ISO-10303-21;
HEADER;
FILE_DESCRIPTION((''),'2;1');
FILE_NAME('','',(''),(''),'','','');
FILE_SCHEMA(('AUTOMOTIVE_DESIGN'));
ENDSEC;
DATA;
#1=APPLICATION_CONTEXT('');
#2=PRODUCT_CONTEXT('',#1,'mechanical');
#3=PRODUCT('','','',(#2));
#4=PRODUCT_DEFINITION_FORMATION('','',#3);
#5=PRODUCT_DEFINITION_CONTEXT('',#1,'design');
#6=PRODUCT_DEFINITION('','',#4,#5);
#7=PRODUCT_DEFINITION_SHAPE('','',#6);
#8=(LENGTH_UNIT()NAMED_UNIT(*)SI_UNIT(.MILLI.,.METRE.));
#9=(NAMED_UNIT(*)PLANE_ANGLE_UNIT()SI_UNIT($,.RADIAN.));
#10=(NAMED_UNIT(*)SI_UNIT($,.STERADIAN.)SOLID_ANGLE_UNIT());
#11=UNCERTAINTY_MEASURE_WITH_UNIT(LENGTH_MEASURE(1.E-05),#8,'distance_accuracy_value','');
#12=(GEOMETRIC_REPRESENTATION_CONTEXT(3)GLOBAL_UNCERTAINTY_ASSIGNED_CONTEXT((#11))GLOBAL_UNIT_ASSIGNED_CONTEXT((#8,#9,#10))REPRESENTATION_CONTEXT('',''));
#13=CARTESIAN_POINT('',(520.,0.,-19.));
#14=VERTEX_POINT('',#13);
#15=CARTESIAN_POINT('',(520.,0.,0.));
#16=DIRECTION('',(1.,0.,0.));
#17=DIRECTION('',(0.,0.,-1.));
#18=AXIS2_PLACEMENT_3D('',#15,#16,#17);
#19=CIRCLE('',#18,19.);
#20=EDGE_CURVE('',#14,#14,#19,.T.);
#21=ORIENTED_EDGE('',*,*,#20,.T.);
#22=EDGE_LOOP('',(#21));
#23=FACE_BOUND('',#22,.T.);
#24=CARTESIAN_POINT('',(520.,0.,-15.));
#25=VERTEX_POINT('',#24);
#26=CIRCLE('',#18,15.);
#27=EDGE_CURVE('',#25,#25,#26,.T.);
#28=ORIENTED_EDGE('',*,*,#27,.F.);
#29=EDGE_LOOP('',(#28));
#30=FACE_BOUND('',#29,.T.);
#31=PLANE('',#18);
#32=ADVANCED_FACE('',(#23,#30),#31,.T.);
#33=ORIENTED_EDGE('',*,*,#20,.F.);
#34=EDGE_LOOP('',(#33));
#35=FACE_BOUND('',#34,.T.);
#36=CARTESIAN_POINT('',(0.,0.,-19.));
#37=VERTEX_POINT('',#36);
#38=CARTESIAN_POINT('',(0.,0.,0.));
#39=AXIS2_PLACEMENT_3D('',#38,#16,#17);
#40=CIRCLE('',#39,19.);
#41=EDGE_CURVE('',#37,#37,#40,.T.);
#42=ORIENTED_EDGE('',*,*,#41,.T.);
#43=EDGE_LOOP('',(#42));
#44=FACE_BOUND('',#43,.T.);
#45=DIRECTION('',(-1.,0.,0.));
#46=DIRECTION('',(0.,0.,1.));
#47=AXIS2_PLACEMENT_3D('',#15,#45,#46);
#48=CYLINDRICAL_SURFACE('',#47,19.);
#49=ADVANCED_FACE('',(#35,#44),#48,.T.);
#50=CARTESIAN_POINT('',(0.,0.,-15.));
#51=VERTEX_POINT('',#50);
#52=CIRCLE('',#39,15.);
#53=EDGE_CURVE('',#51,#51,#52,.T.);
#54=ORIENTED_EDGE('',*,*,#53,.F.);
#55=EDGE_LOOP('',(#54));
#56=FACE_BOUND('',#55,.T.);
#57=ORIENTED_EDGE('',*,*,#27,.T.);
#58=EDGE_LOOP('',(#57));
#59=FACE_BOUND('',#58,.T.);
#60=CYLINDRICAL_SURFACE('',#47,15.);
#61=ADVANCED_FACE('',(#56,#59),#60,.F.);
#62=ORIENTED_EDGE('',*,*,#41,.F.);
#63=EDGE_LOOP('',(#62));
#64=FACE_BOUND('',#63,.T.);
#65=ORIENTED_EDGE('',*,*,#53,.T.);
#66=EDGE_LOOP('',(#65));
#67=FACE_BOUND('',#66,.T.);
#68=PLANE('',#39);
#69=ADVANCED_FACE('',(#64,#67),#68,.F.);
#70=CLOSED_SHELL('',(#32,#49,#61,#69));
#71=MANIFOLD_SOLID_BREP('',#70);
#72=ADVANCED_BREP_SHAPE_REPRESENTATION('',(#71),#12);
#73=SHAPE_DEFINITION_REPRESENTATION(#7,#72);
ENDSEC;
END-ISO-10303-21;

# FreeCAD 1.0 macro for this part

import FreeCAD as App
import Part
import Sketcher

doc = App.newDocument("Part")
body = doc.addObject("PartDesign::Body", "Body")

# Sketch on YZ plane
sketch1 = body.newObject("Sketcher::SketchObject", "Sketch")
sketch1.AttachmentSupport = (doc.getObject("YZ_Plane"), [""])
sketch1.MapMode = "FlatFace"
sketch1.addGeometry([
    Part.Circle(App.Vector(0, 0, 0), App.Vector(0, 0, 1), 19),
    Part.Circle(App.Vector(0, 0, 0), App.Vector(0, 0, 1), 15),
], False)
sketch1.addConstraint([
    Sketcher.Constraint("Coincident", 0, 3, -1, 1),
    Sketcher.Constraint("Coincident", 1, 3, -1, 1),
    Sketcher.Constraint("Diameter", 0, 38.0),
    Sketcher.Constraint("Diameter", 1, 30.0),
])
pad1 = body.newObject("PartDesign::Pad", "Pad")
pad1.Profile = sketch1
pad1.Length = 520

doc.recompute()
